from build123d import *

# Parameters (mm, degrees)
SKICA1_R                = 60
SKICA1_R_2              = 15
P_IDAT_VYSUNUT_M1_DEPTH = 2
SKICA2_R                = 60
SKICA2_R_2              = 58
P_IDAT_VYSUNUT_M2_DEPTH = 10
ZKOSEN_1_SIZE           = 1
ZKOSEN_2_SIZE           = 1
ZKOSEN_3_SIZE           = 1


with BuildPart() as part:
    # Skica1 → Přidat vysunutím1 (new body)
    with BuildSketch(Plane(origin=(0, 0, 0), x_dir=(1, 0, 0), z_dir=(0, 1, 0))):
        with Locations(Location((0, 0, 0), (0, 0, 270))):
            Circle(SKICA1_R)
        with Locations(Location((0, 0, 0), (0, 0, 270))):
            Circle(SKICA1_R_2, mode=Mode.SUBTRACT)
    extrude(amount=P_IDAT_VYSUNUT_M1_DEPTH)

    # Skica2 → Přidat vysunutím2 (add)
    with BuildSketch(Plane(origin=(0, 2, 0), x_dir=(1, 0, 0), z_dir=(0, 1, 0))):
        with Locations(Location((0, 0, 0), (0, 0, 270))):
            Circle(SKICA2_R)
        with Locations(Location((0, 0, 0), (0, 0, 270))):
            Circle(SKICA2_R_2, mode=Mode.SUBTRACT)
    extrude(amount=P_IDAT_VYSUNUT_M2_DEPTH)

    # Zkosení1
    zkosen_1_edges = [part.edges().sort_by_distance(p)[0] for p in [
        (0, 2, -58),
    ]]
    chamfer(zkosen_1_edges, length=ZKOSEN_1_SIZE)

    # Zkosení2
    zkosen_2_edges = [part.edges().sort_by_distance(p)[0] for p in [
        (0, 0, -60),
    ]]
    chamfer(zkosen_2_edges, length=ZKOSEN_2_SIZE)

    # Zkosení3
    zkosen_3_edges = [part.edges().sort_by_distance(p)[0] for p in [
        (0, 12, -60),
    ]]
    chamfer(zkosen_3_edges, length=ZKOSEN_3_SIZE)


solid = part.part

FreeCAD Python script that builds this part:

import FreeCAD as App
import Part
import Sketcher
from FreeCAD import Vector
Q = App.Units.Quantity


def edges_at(feature, points):
    """Names of the edges that pass closest to the given points."""
    edges = feature.Shape.Edges
    near = lambda p: min(range(len(edges)), key=lambda i: edges[i].distToShape(Part.Vertex(*p))[0])
    return sorted({f"Edge{near(p) + 1}" for p in points})

doc = App.newDocument("Part")
body = doc.addObject("PartDesign::Body", "Body")

# Sketch on XZ plane
sketch1 = body.newObject("Sketcher::SketchObject", "Sketch")
sketch1.AttachmentSupport = (doc.getObject("XZ_Plane"), [""])
sketch1.MapMode = "FlatFace"
sketch1.addGeometry([
    Part.Circle(Vector(0, 0, 0), Vector(0, 0, 1), 60),
    Part.Circle(Vector(0, 0, 0), Vector(0, 0, 1), 15),
], False)
sketch1.addConstraint([
    Sketcher.Constraint("Coincident", 0, 3, -1, 1),
    Sketcher.Constraint("Coincident", 1, 3, -1, 1),
    Sketcher.Constraint("Diameter", 0, Q("120 mm")),
    Sketcher.Constraint("Diameter", 1, Q("30 mm")),
])
pad1 = body.newObject("PartDesign::Pad", "Pad")
pad1.Profile = sketch1
pad1.Length = 2
pad1.Reversed = True

# Sketch on XZ plane
sketch2 = body.newObject("Sketcher::SketchObject", "Sketch001")
sketch2.AttachmentSupport = (doc.getObject("XZ_Plane"), [""])
sketch2.MapMode = "FlatFace"
sketch2.AttachmentOffset = App.Placement(Vector(0, 0, -2), App.Rotation())
sketch2.addGeometry([
    Part.Circle(Vector(0, 0, 0), Vector(0, 0, 1), 60),
    Part.Circle(Vector(0, 0, 0), Vector(0, 0, 1), 58),
], False)
sketch2.addConstraint([
    Sketcher.Constraint("Coincident", 0, 3, -1, 1),
    Sketcher.Constraint("Coincident", 1, 3, -1, 1),
    Sketcher.Constraint("Diameter", 0, Q("120 mm")),
    Sketcher.Constraint("Diameter", 1, Q("116 mm")),
])
pad2 = body.newObject("PartDesign::Pad", "Pad001")
pad2.Profile = sketch2
pad2.Length = 10
pad2.Reversed = True
doc.recompute()

chamfer = body.newObject("PartDesign::Chamfer", "Chamfer")
chamfer.Base = (pad2, edges_at(pad2, [(0, 2, -58)]))
chamfer.Size = 1
doc.recompute()

chamfer2 = body.newObject("PartDesign::Chamfer", "Chamfer001")
chamfer2.Base = (chamfer, edges_at(chamfer, [(0, 0, -60)]))
chamfer2.Size = 1
doc.recompute()

chamfer3 = body.newObject("PartDesign::Chamfer", "Chamfer002")
chamfer3.Base = (chamfer2, edges_at(chamfer2, [(0, 12, -60)]))
chamfer3.Size = 1

doc.recompute()
